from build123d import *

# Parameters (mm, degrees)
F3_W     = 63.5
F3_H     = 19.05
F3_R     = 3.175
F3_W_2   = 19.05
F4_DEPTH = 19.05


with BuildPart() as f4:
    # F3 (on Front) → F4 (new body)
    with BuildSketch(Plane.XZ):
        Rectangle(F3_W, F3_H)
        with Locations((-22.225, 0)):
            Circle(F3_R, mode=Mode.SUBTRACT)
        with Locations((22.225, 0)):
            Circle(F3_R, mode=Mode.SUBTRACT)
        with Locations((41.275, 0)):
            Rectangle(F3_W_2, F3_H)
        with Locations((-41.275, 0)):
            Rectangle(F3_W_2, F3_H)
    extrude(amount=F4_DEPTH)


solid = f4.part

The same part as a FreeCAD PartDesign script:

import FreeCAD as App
import Part
import Sketcher
Q = App.Units.Quantity


def add_polygon(sketch, points):
    """Adds a closed chain of lines whose ends are joined by coincident constraints."""
    first, n = sketch.GeometryCount, len(points)
    for a, b in zip(points, points[1:] + points[:1]):
        sketch.addGeometry(Part.LineSegment(App.Vector(*a, 0), App.Vector(*b, 0)), False)
    for i in range(n):
        sketch.addConstraint(Sketcher.Constraint("Coincident", first + i, 2, first + (i + 1) % n, 1))

doc = App.newDocument("Part")
body = doc.addObject("PartDesign::Body", "Body")

# Sketch on XZ plane
sketch1 = body.newObject("Sketcher::SketchObject", "Sketch")
sketch1.AttachmentSupport = (doc.getObject("XZ_Plane"), [""])
sketch1.MapMode = "FlatFace"
add_polygon(sketch1, [(50.8, -9.525), (50.8, 9.525), (-50.8, 9.525), (-50.8, -9.525)])  # lines 0-3
sketch1.addGeometry(Part.Circle(App.Vector(-22.225, 0, 0), App.Vector(0, 0, 1), 3.175), False)  # 4
sketch1.addGeometry(Part.Circle(App.Vector(22.225, 0, 0), App.Vector(0, 0, 1), 3.175), False)  # 5
sketch1.addConstraint(Sketcher.Constraint("Vertical", 0))
sketch1.addConstraint(Sketcher.Constraint("Horizontal", 1))
sketch1.addConstraint(Sketcher.Constraint("Vertical", 2))
sketch1.addConstraint(Sketcher.Constraint("Horizontal", 3))
sketch1.addConstraint(Sketcher.Constraint("Equal", 4, 5))
sketch1.addConstraint(Sketcher.Constraint("Symmetric", 4, 3, 5, 3, -1, 1))
sketch1.addConstraint(Sketcher.Constraint("Symmetric", 0, 2, 2, 2, -1, 1))
sketch1.addConstraint(Sketcher.Constraint("PointOnObject", 4, 3, -1))
sketch1.addConstraint(Sketcher.Constraint("Diameter", 4, Q("0.25 in")))
sketch1.addConstraint(Sketcher.Constraint("DistanceX", 1, 2, 1, 1, Q("4 in")))
sketch1.addConstraint(Sketcher.Constraint("DistanceY", 0, 1, 0, 2, Q("0.75 in")))
sketch1.addConstraint(Sketcher.Constraint("DistanceX", 4, 3, 5, 3, Q("1.75 in")))
pad1 = body.newObject("PartDesign::Pad", "Pad")
pad1.Profile = sketch1
pad1.Length = Q("0.75 in")

doc.recompute()
